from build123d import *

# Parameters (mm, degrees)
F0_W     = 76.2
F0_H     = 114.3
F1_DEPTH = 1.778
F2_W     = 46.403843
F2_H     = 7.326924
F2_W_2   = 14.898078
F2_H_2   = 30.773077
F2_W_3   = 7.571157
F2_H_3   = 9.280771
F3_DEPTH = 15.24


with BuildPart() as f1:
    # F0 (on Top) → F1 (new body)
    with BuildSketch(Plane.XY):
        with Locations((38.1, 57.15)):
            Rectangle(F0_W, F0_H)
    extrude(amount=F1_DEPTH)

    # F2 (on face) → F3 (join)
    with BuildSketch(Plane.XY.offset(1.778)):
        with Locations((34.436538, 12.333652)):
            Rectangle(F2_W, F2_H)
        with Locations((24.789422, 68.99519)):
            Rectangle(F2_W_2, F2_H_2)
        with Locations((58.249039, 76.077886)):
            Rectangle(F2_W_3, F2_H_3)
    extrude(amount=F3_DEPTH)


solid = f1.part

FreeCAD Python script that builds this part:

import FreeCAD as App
import Part
import Sketcher
from FreeCAD import Vector
Q = App.Units.Quantity

doc = App.newDocument("Part")
body = doc.addObject("PartDesign::Body", "Body")

# Sketch on XY plane
sketch1 = doc.addObject("Sketcher::SketchObject", "Sketch")
body.addObject(sketch1)
sketch1.AttachmentSupport = (doc.XY_Plane, [""])
sketch1.MapMode = "FlatFace"
sketch1.addGeometry([
    Part.LineSegment(Vector(0, 114.3, 0), Vector(0, 0, 0)),
    Part.LineSegment(Vector(0, 0, 0), Vector(76.2, 0, 0)),
    Part.LineSegment(Vector(76.2, 0, 0), Vector(76.2, 114.3, 0)),
    Part.LineSegment(Vector(76.2, 114.3, 0), Vector(0, 114.3, 0)),
], False)
sketch1.addConstraint([
    Sketcher.Constraint("Coincident", 0, 2, 1, 1),
    Sketcher.Constraint("Coincident", 1, 2, 2, 1),
    Sketcher.Constraint("Coincident", 2, 2, 3, 1),
    Sketcher.Constraint("Coincident", 3, 2, 0, 1),
    Sketcher.Constraint("Vertical", 0),
    Sketcher.Constraint("Horizontal", 1),
    Sketcher.Constraint("Vertical", 2),
    Sketcher.Constraint("Horizontal", 3),
    Sketcher.Constraint("Coincident", 0, 2, -1, 1),
    Sketcher.Constraint("DistanceX", 1, 1, 1, 2, Q("3 in")),
    Sketcher.Constraint("DistanceY", 0, 2, 0, 1, Q("4.5 in")),
])
pad1 = doc.addObject("PartDesign::Pad", "Pad")
body.addObject(pad1)
pad1.Profile = sketch1
pad1.Length = Q("0.07 in")

# Sketch on XY plane
sketch2 = doc.addObject("Sketcher::SketchObject", "Sketch001")
body.addObject(sketch2)
sketch2.AttachmentSupport = (doc.XY_Plane, [""])
sketch2.MapMode = "FlatFace"
sketch2.AttachmentOffset = App.Placement(Vector(0, 0, 0.07 * 25.4), App.Rotation())
sketch2.addGeometry([
    Part.LineSegment(Vector(11.234616, 15.997114, 0), Vector(11.234616, 8.67019, 0)),  # 0
    Part.LineSegment(Vector(11.234616, 8.67019, 0), Vector(57.63846, 8.67019, 0)),  # 1
    Part.LineSegment(Vector(57.63846, 8.67019, 0), Vector(57.63846, 15.997114, 0)),  # 2
    Part.LineSegment(Vector(57.63846, 15.997114, 0), Vector(11.234616, 15.997114, 0)),  # 3
    Part.LineSegment(Vector(17.340383, 84.381728, 0), Vector(17.340383, 53.608652, 0)),  # 4
    Part.LineSegment(Vector(17.340383, 53.608652, 0), Vector(32.238461, 53.608652, 0)),  # 5
    Part.LineSegment(Vector(32.238461, 53.608652, 0), Vector(32.238461, 84.381728, 0)),  # 6
    Part.LineSegment(Vector(32.238461, 84.381728, 0), Vector(17.340383, 84.381728, 0)),  # 7
    Part.LineSegment(Vector(54.46346, 80.718272, 0), Vector(54.46346, 71.4375, 0)),  # 8
    Part.LineSegment(Vector(54.46346, 71.4375, 0), Vector(62.034618, 71.4375, 0)),  # 9
    Part.LineSegment(Vector(62.034618, 71.4375, 0), Vector(62.034618, 80.718272, 0)),  # 10
    Part.LineSegment(Vector(62.034618, 80.718272, 0), Vector(54.46346, 80.718272, 0)),  # 11
], False)
sketch2.addConstraint([
    Sketcher.Constraint("Coincident", 0, 2, 1, 1),
    Sketcher.Constraint("Coincident", 1, 2, 2, 1),
    Sketcher.Constraint("Coincident", 2, 2, 3, 1),
    Sketcher.Constraint("Coincident", 3, 2, 0, 1),
    Sketcher.Constraint("Coincident", 4, 2, 5, 1),
    Sketcher.Constraint("Coincident", 5, 2, 6, 1),
    Sketcher.Constraint("Coincident", 6, 2, 7, 1),
    Sketcher.Constraint("Coincident", 7, 2, 4, 1),
    Sketcher.Constraint("Coincident", 8, 2, 9, 1),
    Sketcher.Constraint("Coincident", 9, 2, 10, 1),
    Sketcher.Constraint("Coincident", 10, 2, 11, 1),
    Sketcher.Constraint("Coincident", 11, 2, 8, 1),
    Sketcher.Constraint("Vertical", 0),
    Sketcher.Constraint("Horizontal", 1),
    Sketcher.Constraint("Vertical", 2),
    Sketcher.Constraint("Horizontal", 3),
    Sketcher.Constraint("Vertical", 4),
    Sketcher.Constraint("Horizontal", 5),
    Sketcher.Constraint("Vertical", 6),
    Sketcher.Constraint("Horizontal", 7),
    Sketcher.Constraint("Vertical", 8),
    Sketcher.Constraint("Horizontal", 9),
    Sketcher.Constraint("Vertical", 10),
    Sketcher.Constraint("Horizontal", 11),
    Sketcher.Constraint("DistanceX", 5, 2, 2, 2, Q("0.9999999 in")),
    Sketcher.Constraint("DistanceY", -1, 1, 8, 2, Q("2.8125 in")),
    Sketcher.Constraint("DistanceX", 6, 2, 8, 2, Q("0.875 in")),
    Sketcher.Constraint("DistanceX", 5, 1, 5, 2, 14.898078),
    Sketcher.Constraint("DistanceY", 8, 2, 8, 1, 9.280771),
    Sketcher.Constraint("DistanceX", 1, 1, 1, 2, 46.403843),
    Sketcher.Constraint("DistanceX", 9, 1, 9, 2, 7.571157),
    Sketcher.Constraint("DistanceY", 0, 2, 0, 1, 7.326924),
    Sketcher.Constraint("DistanceY", 4, 2, 4, 1, 30.773077),
    Sketcher.Constraint("DistanceY", -1, 1, 0, 2, 8.67019),
    Sketcher.Constraint("DistanceX", -1, 1, 1, 2, 57.63846),
    Sketcher.Constraint("DistanceY", -1, 1, 4, 2, 53.608652),
])
pad2 = doc.addObject("PartDesign::Pad", "Pad001")
body.addObject(pad2)
pad2.Profile = sketch2
pad2.Length = Q("0.6 in")

doc.recompute()
